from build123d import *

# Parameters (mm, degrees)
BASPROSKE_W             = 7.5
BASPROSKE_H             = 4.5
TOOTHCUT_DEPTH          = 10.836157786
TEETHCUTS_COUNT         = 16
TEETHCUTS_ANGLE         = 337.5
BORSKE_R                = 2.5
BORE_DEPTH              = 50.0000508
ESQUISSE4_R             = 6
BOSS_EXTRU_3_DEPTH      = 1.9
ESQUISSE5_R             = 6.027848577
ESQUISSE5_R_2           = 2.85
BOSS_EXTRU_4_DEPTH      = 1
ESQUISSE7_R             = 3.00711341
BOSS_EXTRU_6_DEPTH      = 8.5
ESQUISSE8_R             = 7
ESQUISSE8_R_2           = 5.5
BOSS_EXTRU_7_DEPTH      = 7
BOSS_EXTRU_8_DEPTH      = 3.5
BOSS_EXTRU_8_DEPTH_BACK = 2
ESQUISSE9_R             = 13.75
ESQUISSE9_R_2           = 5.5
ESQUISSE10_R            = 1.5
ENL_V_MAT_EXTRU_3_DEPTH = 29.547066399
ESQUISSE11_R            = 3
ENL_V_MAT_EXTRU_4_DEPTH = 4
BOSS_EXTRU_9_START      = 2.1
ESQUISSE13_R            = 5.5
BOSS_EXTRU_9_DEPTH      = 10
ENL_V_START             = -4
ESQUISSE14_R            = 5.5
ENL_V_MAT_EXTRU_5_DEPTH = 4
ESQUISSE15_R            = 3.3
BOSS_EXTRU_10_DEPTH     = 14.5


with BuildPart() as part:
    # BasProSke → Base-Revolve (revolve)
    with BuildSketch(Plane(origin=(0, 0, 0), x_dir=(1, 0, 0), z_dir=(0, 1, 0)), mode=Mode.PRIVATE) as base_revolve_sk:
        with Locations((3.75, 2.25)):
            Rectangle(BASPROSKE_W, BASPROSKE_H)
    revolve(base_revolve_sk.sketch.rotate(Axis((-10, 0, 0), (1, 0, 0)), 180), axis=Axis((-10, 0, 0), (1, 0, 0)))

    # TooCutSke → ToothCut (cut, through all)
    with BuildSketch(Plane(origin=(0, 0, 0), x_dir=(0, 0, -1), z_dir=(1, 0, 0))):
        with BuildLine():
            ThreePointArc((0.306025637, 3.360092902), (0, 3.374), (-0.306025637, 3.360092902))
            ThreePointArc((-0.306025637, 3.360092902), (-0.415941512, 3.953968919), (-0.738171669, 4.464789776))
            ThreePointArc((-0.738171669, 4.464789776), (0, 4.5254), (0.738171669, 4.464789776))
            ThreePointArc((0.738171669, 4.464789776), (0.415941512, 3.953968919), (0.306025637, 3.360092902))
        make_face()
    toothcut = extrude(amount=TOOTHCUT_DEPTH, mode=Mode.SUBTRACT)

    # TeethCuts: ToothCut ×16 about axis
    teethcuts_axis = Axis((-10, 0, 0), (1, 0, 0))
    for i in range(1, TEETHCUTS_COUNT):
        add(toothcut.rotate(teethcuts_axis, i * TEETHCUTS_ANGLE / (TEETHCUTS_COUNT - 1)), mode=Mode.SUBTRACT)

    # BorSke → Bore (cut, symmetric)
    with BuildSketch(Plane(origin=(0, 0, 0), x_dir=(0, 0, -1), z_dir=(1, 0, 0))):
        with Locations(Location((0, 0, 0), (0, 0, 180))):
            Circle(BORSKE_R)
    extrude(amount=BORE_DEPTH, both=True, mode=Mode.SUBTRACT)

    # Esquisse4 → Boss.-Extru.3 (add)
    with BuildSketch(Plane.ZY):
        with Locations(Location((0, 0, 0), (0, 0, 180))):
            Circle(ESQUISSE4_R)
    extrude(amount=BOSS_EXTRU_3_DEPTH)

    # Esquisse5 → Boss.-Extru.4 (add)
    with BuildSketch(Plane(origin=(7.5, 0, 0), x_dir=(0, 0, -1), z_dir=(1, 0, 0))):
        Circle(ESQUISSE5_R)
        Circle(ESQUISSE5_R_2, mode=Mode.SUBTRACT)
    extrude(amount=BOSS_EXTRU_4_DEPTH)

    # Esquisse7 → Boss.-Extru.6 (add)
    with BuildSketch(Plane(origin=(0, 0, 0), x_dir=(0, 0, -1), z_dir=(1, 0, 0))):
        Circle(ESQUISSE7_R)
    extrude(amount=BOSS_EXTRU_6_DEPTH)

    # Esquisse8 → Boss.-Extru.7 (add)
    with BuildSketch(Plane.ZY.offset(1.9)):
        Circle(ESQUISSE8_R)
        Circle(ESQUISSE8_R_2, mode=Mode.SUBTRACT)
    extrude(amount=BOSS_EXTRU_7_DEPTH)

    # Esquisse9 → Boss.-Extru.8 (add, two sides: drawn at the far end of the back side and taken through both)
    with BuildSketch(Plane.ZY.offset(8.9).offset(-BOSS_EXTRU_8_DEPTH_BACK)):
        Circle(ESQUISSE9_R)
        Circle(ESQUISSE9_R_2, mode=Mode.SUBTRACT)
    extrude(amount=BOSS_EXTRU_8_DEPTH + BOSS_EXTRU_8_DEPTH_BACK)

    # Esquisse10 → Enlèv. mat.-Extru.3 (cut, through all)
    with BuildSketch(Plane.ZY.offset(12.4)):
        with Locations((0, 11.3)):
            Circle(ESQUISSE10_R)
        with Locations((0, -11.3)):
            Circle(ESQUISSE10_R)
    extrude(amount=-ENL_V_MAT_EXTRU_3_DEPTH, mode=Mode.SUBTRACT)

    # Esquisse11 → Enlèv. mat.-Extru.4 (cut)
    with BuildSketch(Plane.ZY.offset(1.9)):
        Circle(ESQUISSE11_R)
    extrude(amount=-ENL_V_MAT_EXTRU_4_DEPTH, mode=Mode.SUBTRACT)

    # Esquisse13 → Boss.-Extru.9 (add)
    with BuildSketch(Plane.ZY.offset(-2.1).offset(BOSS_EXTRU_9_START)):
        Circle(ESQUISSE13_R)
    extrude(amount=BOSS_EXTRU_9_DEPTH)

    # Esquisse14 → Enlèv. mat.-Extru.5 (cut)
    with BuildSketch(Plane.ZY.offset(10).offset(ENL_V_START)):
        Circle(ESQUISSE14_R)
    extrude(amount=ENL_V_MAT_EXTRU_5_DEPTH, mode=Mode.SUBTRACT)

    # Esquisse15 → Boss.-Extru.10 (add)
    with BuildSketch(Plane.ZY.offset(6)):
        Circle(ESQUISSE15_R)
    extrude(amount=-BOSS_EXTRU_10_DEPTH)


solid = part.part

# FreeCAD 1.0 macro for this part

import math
import FreeCAD as App
import Part
import Sketcher
Q = App.Units.Quantity

doc = App.newDocument("Part")
body = doc.addObject("PartDesign::Body", "Body")

sketch1 = doc.addObject("Sketcher::SketchObject", "Sketch")
body.addObject(sketch1)
sketch1.AttachmentSupport = (doc.XZ_Plane, [""])
sketch1.MapMode = "FlatFace"
sketch1.addGeometry(Part.LineSegment(App.Vector(0, -4.5, 0), App.Vector(0, 0, 0)), False)
sketch1.addGeometry(Part.LineSegment(App.Vector(0, 0, 0), App.Vector(7.5, 0, 0)), False)
sketch1.addGeometry(Part.LineSegment(App.Vector(7.5, 0, 0), App.Vector(7.5, -4.5, 0)), False)
sketch1.addGeometry(Part.LineSegment(App.Vector(7.5, -4.5, 0), App.Vector(0, -4.5, 0)), False)
sketch1.addConstraint(Sketcher.Constraint("Coincident", 0, 2, 1, 1))
sketch1.addConstraint(Sketcher.Constraint("Coincident", 1, 2, 2, 1))
sketch1.addConstraint(Sketcher.Constraint("Coincident", 2, 2, 3, 1))
sketch1.addConstraint(Sketcher.Constraint("Coincident", 3, 2, 0, 1))
sketch1.addConstraint(Sketcher.Constraint("Vertical", 0))
sketch1.addConstraint(Sketcher.Constraint("Horizontal", 1))
sketch1.addConstraint(Sketcher.Constraint("Vertical", 2))
sketch1.addConstraint(Sketcher.Constraint("Horizontal", 3))
sketch1.addConstraint(Sketcher.Constraint("Coincident", 0, 2, -1, 1))
sketch1.addConstraint(Sketcher.Constraint("DistanceX", 1, 1, 1, 2, Q("7.5 mm")))
sketch1.addConstraint(Sketcher.Constraint("DistanceY", 0, 1, 0, 2, Q("4.5 mm")))
revolution = doc.addObject("PartDesign::Revolution", "Revolution")
body.addObject(revolution)
revolution.Profile = sketch1
revolution.ReferenceAxis = (sketch1, ["H_Axis"])
revolution.Angle = 360

sketch2 = doc.addObject("Sketcher::SketchObject", "Sketch001")
body.addObject(sketch2)
sketch2.AttachmentSupport = (doc.YZ_Plane, [""])
sketch2.MapMode = "FlatFace"
sketch2.addGeometry(Part.ArcOfCircle(Part.Circle(App.Vector(0, 0, 0), App.Vector(0, 0, 1), 3.374), math.radians(-5.203944), math.radians(5.203944)), False)
sketch2.addGeometry(Part.ArcOfCircle(Part.Circle(App.Vector(3.371078, -1.905988, 0), App.Vector(0, 0, 1), 1.6), math.radians(46.876767), math.radians(90.393382)), False)
sketch2.addGeometry(Part.ArcOfCircle(Part.Circle(App.Vector(0, 0, 0), App.Vector(0, 0, 1), 4.5254), math.radians(-9.38789), math.radians(9.38789)), False)
sketch2.addGeometry(Part.ArcOfCircle(Part.Circle(App.Vector(3.371078, 1.905988, 0), App.Vector(0, 0, 1), 1.6), math.radians(-90.393382), math.radians(-46.876767)), False)
sketch2.addConstraint(Sketcher.Constraint("Coincident", 0, 1, 1, 2))
sketch2.addConstraint(Sketcher.Constraint("Coincident", 1, 1, 2, 1))
sketch2.addConstraint(Sketcher.Constraint("Coincident", 2, 2, 3, 2))
sketch2.addConstraint(Sketcher.Constraint("Coincident", 3, 1, 0, 2))
sketch2.addConstraint(Sketcher.Constraint("Coincident", 0, 3, -1, 1))
sketch2.addConstraint(Sketcher.Constraint("Coincident", 2, 3, -1, 1))
sketch2.addConstraint(Sketcher.Constraint("Equal", 1, 3))
sketch2.addConstraint(Sketcher.Constraint("Symmetric", 1, 3, 3, 3, -1))
sketch2.addConstraint(Sketcher.Constraint("Radius", 1, Q("1.6 mm")))
sketch2.addConstraint(Sketcher.Constraint("Radius", 0, Q("3.374 mm")))
sketch2.addConstraint(Sketcher.Constraint("Radius", 2, Q("4.5254 mm")))
sketch2.addConstraint(Sketcher.Constraint("DistanceX", -1, 1, 1, 3, Q("3.371078 mm")))
sketch2.addConstraint(Sketcher.Constraint("DistanceX", -1, 1, 1, 1, Q("4.46479 mm")))
pocket1 = doc.addObject("PartDesign::Pocket", "Pocket")
body.addObject(pocket1)
pocket1.Profile = sketch2
pocket1.Type = "ThroughAll"
pocket1.Reversed = True
doc.recompute()

polarpattern = doc.addObject("PartDesign::PolarPattern", "PolarPattern")
body.addObject(polarpattern)
polarpattern.Originals = [pocket1]
polarpattern.Axis = (doc.X_Axis, [""])
polarpattern.Angle = 360
polarpattern.Occurrences = 16
body.Tip = polarpattern

sketch3 = doc.addObject("Sketcher::SketchObject", "Sketch002")
body.addObject(sketch3)
sketch3.AttachmentSupport = (doc.YZ_Plane, [""])
sketch3.MapMode = "FlatFace"
sketch3.addGeometry(Part.Circle(App.Vector(0, 0, 0), App.Vector(0, 0, 1), 2.5), False)
sketch3.addConstraint(Sketcher.Constraint("Coincident", 0, 3, -1, 1))
sketch3.addConstraint(Sketcher.Constraint("Diameter", 0, Q("5 mm")))
pocket2 = doc.addObject("PartDesign::Pocket", "Pocket001")
body.addObject(pocket2)
pocket2.Profile = sketch3
pocket2.Length = 100.000102
pocket2.Midplane = True

sketch4 = doc.addObject("Sketcher::SketchObject", "Sketch003")
body.addObject(sketch4)
sketch4.AttachmentSupport = (doc.YZ_Plane, [""])
sketch4.MapMode = "FlatFace"
sketch4.addGeometry(Part.Circle(App.Vector(0, 0, 0), App.Vector(0, 0, 1), 6), False)
sketch4.addConstraint(Sketcher.Constraint("Coincident", 0, 3, -1, 1))
sketch4.addConstraint(Sketcher.Constraint("Diameter", 0, Q("12 mm")))
pad1 = doc.addObject("PartDesign::Pad", "Pad")
body.addObject(pad1)
pad1.Profile = sketch4
pad1.Length = 1.9
pad1.Reversed = True

sketch5 = doc.addObject("Sketcher::SketchObject", "Sketch004")
body.addObject(sketch5)
sketch5.AttachmentSupport = (doc.YZ_Plane, [""])
sketch5.MapMode = "FlatFace"
sketch5.AttachmentOffset = App.Placement(App.Vector(0, 0, 7.5), App.Rotation())
sketch5.addGeometry(Part.Circle(App.Vector(0, 0, 0), App.Vector(0, 0, 1), 6.027849), False)
sketch5.addGeometry(Part.Circle(App.Vector(0, 0, 0), App.Vector(0, 0, 1), 2.85), False)
sketch5.addConstraint(Sketcher.Constraint("Coincident", 0, 3, -1, 1))
sketch5.addConstraint(Sketcher.Constraint("Coincident", 1, 3, -1, 1))
sketch5.addConstraint(Sketcher.Constraint("Diameter", 1, Q("5.7 mm")))
sketch5.addConstraint(Sketcher.Constraint("Diameter", 0, Q("12.055697 mm")))
pad2 = doc.addObject("PartDesign::Pad", "Pad001")
body.addObject(pad2)
pad2.Profile = sketch5
pad2.Length = 1

sketch6 = doc.addObject("Sketcher::SketchObject", "Sketch005")
body.addObject(sketch6)
sketch6.AttachmentSupport = (doc.YZ_Plane, [""])
sketch6.MapMode = "FlatFace"
sketch6.addGeometry(Part.Circle(App.Vector(0, 0, 0), App.Vector(0, 0, 1), 3.007113), False)
sketch6.addConstraint(Sketcher.Constraint("Coincident", 0, 3, -1, 1))
sketch6.addConstraint(Sketcher.Constraint("Diameter", 0, Q("6.014227 mm")))
pad3 = doc.addObject("PartDesign::Pad", "Pad002")
body.addObject(pad3)
pad3.Profile = sketch6
pad3.Length = 8.5

sketch7 = doc.addObject("Sketcher::SketchObject", "Sketch006")
body.addObject(sketch7)
sketch7.AttachmentSupport = (doc.YZ_Plane, [""])
sketch7.MapMode = "FlatFace"
sketch7.AttachmentOffset = App.Placement(App.Vector(0, 0, -1.9), App.Rotation())
sketch7.addGeometry(Part.Circle(App.Vector(0, 0, 0), App.Vector(0, 0, 1), 7), False)
sketch7.addGeometry(Part.Circle(App.Vector(0, 0, 0), App.Vector(0, 0, 1), 5.5), False)
sketch7.addConstraint(Sketcher.Constraint("Coincident", 0, 3, -1, 1))
sketch7.addConstraint(Sketcher.Constraint("Coincident", 1, 3, -1, 1))
sketch7.addConstraint(Sketcher.Constraint("Diameter", 0, Q("14 mm")))
sketch7.addConstraint(Sketcher.Constraint("Diameter", 1, Q("11 mm")))
pad4 = doc.addObject("PartDesign::Pad", "Pad003")
body.addObject(pad4)
pad4.Profile = sketch7
pad4.Length = 7
pad4.Reversed = True

sketch8 = doc.addObject("Sketcher::SketchObject", "Sketch007")
body.addObject(sketch8)
sketch8.AttachmentSupport = (doc.YZ_Plane, [""])
sketch8.MapMode = "FlatFace"
sketch8.AttachmentOffset = App.Placement(App.Vector(0, 0, -8.9), App.Rotation())
sketch8.addGeometry(Part.Circle(App.Vector(0, 0, 0), App.Vector(0, 0, 1), 13.75), False)
sketch8.addGeometry(Part.Circle(App.Vector(0, 0, 0), App.Vector(0, 0, 1), 5.5), False)
sketch8.addConstraint(Sketcher.Constraint("Coincident", 0, 3, -1, 1))
sketch8.addConstraint(Sketcher.Constraint("Coincident", 1, 3, -1, 1))
sketch8.addConstraint(Sketcher.Constraint("Diameter", 1, Q("11 mm")))
sketch8.addConstraint(Sketcher.Constraint("Diameter", 0, Q("27.5 mm")))
pad5 = doc.addObject("PartDesign::Pad", "Pad004")
body.addObject(pad5)
pad5.Profile = sketch8
pad5.Type = "TwoLengths"
pad5.Length = 3.5
pad5.Length2 = 2
pad5.Reversed = True

sketch9 = doc.addObject("Sketcher::SketchObject", "Sketch008")
body.addObject(sketch9)
sketch9.AttachmentSupport = (doc.YZ_Plane, [""])
sketch9.MapMode = "FlatFace"
sketch9.AttachmentOffset = App.Placement(App.Vector(0, 0, -12.4), App.Rotation())
sketch9.addGeometry(Part.Circle(App.Vector(11.3, 0, 0), App.Vector(0, 0, 1), 1.5), False)
sketch9.addGeometry(Part.Circle(App.Vector(-11.3, 0, 0), App.Vector(0, 0, 1), 1.5), False)
sketch9.addConstraint(Sketcher.Constraint("Equal", 0, 1))
sketch9.addConstraint(Sketcher.Constraint("Symmetric", 0, 3, 1, 3, -1, 1))
sketch9.addConstraint(Sketcher.Constraint("PointOnObject", 0, 3, -1))
sketch9.addConstraint(Sketcher.Constraint("Diameter", 0, Q("3 mm")))
sketch9.addConstraint(Sketcher.Constraint("DistanceX", -1, 1, 0, 3, Q("11.3 mm")))
pocket3 = doc.addObject("PartDesign::Pocket", "Pocket002")
body.addObject(pocket3)
pocket3.Profile = sketch9
pocket3.Type = "ThroughAll"
pocket3.Reversed = True

sketch10 = doc.addObject("Sketcher::SketchObject", "Sketch009")
body.addObject(sketch10)
sketch10.AttachmentSupport = (doc.YZ_Plane, [""])
sketch10.MapMode = "FlatFace"
sketch10.AttachmentOffset = App.Placement(App.Vector(0, 0, -1.9), App.Rotation())
sketch10.addGeometry(Part.Circle(App.Vector(0, 0, 0), App.Vector(0, 0, 1), 3), False)
sketch10.addConstraint(Sketcher.Constraint("Coincident", 0, 3, -1, 1))
sketch10.addConstraint(Sketcher.Constraint("Diameter", 0, Q("6 mm")))
pocket4 = doc.addObject("PartDesign::Pocket", "Pocket003")
body.addObject(pocket4)
pocket4.Profile = sketch10
pocket4.Length = 4
pocket4.Reversed = True

sketch11 = doc.addObject("Sketcher::SketchObject", "Sketch010")
body.addObject(sketch11)
sketch11.AttachmentSupport = (doc.YZ_Plane, [""])
sketch11.MapMode = "FlatFace"
sketch11.addGeometry(Part.Circle(App.Vector(0, 0, 0), App.Vector(0, 0, 1), 5.5), False)
sketch11.addConstraint(Sketcher.Constraint("Coincident", 0, 3, -1, 1))
sketch11.addConstraint(Sketcher.Constraint("Diameter", 0, Q("11 mm")))
pad6 = doc.addObject("PartDesign::Pad", "Pad005")
body.addObject(pad6)
pad6.Profile = sketch11
pad6.Length = 10
pad6.Reversed = True

sketch12 = doc.addObject("Sketcher::SketchObject", "Sketch011")
body.addObject(sketch12)
sketch12.AttachmentSupport = (doc.YZ_Plane, [""])
sketch12.MapMode = "FlatFace"
sketch12.AttachmentOffset = App.Placement(App.Vector(0, 0, -6), App.Rotation())
sketch12.addGeometry(Part.Circle(App.Vector(0, 0, 0), App.Vector(0, 0, 1), 5.5), False)
sketch12.addConstraint(Sketcher.Constraint("Coincident", 0, 3, -1, 1))
sketch12.addConstraint(Sketcher.Constraint("Diameter", 0, Q("11 mm")))
pocket5 = doc.addObject("PartDesign::Pocket", "Pocket004")
body.addObject(pocket5)
pocket5.Profile = sketch12
pocket5.Length = 4

sketch13 = doc.addObject("Sketcher::SketchObject", "Sketch012")
body.addObject(sketch13)
sketch13.AttachmentSupport = (doc.YZ_Plane, [""])
sketch13.MapMode = "FlatFace"
sketch13.AttachmentOffset = App.Placement(App.Vector(0, 0, -6), App.Rotation())
sketch13.addGeometry(Part.Circle(App.Vector(0, 0, 0), App.Vector(0, 0, 1), 3.3), False)
sketch13.addConstraint(Sketcher.Constraint("Coincident", 0, 3, -1, 1))
sketch13.addConstraint(Sketcher.Constraint("Diameter", 0, Q("6.6 mm")))
pad7 = doc.addObject("PartDesign::Pad", "Pad006")
body.addObject(pad7)
pad7.Profile = sketch13
pad7.Length = 14.5

doc.recompute()
